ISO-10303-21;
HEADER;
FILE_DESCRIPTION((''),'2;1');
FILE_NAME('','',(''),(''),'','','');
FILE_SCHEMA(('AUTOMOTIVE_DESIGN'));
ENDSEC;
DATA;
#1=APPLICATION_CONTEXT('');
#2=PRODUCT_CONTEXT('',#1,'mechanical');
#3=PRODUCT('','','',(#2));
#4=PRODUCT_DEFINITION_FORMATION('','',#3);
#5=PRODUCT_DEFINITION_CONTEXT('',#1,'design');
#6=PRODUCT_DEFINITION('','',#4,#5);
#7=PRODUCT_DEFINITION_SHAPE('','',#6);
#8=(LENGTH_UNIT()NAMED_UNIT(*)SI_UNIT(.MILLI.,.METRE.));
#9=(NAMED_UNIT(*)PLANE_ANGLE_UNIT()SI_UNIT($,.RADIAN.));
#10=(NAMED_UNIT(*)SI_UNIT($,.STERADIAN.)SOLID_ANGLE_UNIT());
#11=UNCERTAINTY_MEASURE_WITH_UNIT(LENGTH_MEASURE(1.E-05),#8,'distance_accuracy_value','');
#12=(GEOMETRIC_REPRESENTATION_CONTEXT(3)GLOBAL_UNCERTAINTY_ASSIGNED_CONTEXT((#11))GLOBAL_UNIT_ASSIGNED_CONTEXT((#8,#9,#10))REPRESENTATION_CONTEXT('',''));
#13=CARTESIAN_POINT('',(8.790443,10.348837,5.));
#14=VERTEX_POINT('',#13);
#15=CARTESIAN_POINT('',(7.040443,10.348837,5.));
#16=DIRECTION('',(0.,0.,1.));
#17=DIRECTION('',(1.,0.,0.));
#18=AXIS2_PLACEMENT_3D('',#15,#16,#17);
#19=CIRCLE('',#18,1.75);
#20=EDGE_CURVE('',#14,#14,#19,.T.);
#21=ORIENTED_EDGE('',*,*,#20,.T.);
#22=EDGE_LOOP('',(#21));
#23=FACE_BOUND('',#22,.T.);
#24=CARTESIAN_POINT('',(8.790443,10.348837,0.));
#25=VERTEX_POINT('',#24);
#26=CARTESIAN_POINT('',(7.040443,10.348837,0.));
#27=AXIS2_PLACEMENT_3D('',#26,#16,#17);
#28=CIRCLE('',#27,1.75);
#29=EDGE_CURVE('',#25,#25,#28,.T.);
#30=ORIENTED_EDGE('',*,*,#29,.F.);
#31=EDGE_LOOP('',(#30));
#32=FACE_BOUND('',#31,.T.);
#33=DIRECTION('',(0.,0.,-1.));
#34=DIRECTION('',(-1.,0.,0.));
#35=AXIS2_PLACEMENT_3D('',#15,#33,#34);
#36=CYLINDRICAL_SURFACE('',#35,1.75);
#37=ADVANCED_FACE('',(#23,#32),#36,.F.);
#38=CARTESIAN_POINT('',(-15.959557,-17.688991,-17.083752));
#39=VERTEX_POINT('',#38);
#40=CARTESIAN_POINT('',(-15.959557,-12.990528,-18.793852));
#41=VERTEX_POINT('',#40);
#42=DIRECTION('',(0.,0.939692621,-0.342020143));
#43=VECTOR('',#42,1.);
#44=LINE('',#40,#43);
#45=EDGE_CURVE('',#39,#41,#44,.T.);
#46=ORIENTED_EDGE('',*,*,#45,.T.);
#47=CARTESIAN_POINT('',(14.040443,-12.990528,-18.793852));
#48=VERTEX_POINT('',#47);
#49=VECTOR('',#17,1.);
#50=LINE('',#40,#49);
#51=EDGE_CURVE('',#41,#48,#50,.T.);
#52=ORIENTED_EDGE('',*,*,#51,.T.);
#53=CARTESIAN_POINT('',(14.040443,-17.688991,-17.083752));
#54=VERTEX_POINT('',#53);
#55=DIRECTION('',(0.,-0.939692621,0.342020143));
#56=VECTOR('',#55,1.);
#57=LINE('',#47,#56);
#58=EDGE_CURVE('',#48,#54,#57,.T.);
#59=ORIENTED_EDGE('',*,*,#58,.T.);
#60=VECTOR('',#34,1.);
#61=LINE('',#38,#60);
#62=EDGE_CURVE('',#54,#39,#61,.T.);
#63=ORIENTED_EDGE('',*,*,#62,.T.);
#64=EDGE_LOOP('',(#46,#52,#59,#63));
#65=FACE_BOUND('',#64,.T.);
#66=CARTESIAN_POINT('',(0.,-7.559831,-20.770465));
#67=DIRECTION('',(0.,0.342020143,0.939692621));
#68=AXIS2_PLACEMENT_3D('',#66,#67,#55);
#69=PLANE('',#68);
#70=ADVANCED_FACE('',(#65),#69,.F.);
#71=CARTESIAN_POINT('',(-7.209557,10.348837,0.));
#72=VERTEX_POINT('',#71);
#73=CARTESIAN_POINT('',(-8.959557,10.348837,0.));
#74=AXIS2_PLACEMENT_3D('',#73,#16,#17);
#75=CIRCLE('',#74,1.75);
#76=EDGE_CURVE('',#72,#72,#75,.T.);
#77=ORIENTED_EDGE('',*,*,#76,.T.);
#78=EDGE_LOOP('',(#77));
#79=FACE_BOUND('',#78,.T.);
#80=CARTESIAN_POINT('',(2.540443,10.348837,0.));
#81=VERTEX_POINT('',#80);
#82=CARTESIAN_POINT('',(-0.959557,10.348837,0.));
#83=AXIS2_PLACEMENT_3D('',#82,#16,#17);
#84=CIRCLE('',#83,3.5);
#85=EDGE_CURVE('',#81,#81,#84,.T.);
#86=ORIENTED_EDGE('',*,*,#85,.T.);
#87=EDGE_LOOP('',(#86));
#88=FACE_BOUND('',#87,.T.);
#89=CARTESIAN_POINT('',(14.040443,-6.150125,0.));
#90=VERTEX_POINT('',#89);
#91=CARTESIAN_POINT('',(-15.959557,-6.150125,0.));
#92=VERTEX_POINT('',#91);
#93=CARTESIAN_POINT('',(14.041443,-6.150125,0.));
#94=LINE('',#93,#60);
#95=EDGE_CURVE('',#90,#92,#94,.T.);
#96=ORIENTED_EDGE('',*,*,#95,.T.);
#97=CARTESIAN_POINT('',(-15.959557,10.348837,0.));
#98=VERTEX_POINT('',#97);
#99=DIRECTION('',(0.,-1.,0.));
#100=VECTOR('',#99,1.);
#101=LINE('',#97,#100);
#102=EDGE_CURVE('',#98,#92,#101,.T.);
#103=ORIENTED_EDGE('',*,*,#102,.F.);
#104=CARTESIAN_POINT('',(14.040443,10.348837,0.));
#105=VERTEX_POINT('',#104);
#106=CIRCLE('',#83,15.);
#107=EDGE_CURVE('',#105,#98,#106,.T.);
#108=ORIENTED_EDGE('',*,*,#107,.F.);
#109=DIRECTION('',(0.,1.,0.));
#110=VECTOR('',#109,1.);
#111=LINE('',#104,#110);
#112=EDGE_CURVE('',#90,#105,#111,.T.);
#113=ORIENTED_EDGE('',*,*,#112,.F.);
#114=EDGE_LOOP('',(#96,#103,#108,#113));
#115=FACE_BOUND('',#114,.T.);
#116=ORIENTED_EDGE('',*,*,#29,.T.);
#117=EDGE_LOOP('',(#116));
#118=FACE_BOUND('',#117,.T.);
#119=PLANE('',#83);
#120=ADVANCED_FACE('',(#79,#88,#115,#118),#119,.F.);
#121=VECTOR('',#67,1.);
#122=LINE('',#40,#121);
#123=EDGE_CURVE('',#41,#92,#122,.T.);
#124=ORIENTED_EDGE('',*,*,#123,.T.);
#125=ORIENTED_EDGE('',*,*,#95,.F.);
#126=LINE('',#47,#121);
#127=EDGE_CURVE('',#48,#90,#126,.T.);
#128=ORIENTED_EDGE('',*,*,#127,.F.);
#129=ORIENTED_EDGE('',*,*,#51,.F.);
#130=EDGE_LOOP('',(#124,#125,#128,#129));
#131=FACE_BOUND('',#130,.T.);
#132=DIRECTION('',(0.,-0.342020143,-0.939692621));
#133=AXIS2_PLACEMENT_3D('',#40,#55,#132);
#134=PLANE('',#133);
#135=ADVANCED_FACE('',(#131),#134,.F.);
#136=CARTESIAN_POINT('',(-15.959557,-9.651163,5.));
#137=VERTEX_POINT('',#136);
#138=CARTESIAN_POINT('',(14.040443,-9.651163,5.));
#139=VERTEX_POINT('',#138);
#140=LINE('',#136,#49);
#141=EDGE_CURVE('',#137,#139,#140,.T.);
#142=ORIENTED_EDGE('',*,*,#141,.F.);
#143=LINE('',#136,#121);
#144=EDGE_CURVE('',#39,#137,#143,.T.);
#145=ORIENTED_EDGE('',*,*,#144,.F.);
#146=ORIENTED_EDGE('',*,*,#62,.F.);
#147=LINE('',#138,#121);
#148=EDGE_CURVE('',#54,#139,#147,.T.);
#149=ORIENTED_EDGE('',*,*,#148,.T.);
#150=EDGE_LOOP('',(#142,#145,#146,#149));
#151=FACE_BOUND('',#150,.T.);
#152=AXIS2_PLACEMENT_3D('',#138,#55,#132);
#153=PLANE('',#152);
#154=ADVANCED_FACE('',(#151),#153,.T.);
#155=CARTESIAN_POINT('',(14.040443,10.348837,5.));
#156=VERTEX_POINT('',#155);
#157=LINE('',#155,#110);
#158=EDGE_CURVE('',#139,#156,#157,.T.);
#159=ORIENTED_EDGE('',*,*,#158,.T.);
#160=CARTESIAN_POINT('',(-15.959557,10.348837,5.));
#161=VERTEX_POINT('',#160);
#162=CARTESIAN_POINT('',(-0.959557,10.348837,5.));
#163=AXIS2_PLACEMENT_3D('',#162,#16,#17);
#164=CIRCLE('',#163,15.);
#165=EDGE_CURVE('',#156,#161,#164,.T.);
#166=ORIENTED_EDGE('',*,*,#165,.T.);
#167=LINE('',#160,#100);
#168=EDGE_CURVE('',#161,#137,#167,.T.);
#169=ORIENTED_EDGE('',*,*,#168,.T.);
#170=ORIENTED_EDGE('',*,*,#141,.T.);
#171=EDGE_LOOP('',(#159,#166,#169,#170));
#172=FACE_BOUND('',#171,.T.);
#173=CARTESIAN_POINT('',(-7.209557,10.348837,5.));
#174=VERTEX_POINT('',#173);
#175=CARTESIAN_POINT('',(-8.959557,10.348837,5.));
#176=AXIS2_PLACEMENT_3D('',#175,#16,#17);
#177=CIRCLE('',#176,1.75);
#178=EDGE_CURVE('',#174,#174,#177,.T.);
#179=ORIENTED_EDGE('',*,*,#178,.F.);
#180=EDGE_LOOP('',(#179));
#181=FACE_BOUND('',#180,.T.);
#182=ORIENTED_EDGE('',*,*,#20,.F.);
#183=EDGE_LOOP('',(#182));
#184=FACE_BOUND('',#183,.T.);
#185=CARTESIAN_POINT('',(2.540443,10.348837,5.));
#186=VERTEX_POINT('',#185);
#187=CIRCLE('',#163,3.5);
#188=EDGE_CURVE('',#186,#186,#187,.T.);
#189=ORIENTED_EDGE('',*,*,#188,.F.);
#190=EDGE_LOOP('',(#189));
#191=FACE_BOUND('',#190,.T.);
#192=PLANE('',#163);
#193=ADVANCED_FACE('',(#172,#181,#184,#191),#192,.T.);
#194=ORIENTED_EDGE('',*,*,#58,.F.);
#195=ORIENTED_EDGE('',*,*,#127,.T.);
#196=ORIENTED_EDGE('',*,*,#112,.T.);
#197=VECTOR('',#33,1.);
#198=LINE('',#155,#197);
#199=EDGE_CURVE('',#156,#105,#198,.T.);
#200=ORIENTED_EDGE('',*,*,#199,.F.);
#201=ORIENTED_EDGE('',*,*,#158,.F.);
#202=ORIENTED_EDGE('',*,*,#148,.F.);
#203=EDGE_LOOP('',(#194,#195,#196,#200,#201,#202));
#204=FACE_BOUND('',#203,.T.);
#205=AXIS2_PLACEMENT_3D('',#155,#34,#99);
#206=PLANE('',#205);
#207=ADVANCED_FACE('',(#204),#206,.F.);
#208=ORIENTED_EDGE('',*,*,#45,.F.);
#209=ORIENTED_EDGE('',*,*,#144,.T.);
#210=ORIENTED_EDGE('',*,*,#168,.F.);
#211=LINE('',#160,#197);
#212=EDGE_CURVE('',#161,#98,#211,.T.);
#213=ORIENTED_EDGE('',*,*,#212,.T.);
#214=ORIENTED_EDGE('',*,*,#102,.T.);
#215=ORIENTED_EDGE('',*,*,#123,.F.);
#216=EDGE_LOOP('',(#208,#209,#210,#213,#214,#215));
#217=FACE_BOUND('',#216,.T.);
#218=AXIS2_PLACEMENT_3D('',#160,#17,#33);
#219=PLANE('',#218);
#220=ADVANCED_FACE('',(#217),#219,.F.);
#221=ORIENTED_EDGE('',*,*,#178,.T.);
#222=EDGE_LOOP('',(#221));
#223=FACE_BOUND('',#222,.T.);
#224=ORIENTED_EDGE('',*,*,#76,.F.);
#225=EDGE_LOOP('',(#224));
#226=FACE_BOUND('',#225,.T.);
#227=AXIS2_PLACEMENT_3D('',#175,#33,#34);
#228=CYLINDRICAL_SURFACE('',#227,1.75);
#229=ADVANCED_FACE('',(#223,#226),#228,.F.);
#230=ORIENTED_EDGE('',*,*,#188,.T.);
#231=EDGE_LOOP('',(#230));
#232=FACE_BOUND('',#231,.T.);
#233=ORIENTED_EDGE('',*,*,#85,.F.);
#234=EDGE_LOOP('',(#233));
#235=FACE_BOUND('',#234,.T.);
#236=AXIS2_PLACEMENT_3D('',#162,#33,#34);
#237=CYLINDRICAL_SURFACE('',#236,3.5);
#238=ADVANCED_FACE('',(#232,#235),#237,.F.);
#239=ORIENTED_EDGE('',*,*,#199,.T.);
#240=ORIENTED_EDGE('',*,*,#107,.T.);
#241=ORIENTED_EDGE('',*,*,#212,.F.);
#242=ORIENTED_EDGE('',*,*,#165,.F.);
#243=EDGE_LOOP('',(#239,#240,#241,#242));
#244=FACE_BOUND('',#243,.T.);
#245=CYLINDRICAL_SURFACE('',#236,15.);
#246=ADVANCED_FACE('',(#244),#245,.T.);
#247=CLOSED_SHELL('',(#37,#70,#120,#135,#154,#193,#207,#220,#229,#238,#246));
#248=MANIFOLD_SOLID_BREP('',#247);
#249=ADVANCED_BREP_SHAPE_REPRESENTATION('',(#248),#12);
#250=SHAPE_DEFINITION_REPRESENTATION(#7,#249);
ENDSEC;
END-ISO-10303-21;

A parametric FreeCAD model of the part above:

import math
import FreeCAD as App
import Part
import Sketcher

V = App.Vector
Q = App.Units.Quantity

doc = App.newDocument("Part")
body = doc.addObject("PartDesign::Body", "Body")

# Sketch on XY plane
sketch1 = body.newObject("Sketcher::SketchObject", "Sketch")
sketch1.AttachmentSupport = (doc.getObject("XY_Plane"), [""])
sketch1.MapMode = "FlatFace"
sketch1.addGeometry(Part.LineSegment(V(-16, 10.3, 0), V(-16, -9.7, 0)), False)
sketch1.addGeometry(Part.LineSegment(V(-16, -9.7, 0), V(14, -9.7, 0)), False)
sketch1.addGeometry(Part.LineSegment(V(14, -9.7, 0), V(14, 10.3, 0)), False)
sketch1.addGeometry(Part.ArcOfCircle(Part.Circle(V(-1, 10.3, 0), V(0, 0, 1), 15), math.radians(0), math.radians(180)), False)
sketch1.addGeometry(Part.Circle(V(-9, 10.3, 0), V(0, 0, 1), 1.8), False)
sketch1.addGeometry(Part.Circle(V(-1, 10.3, 0), V(0, 0, 1), 3.5), False)
sketch1.addGeometry(Part.Circle(V(7, 10.3, 0), V(0, 0, 1), 1.8), False)
sketch1.addConstraint(Sketcher.Constraint("Coincident", 0, 2, 1, 1))
sketch1.addConstraint(Sketcher.Constraint("Coincident", 1, 2, 2, 1))
sketch1.addConstraint(Sketcher.Constraint("Tangent", 2, 2, 3, 1))
sketch1.addConstraint(Sketcher.Constraint("Tangent", 3, 2, 0, 1))
sketch1.addConstraint(Sketcher.Constraint("Vertical", 0))
sketch1.addConstraint(Sketcher.Constraint("Horizontal", 1))
sketch1.addConstraint(Sketcher.Constraint("Vertical", 2))
sketch1.addConstraint(Sketcher.Constraint("Coincident", 5, 3, 3, 3))
sketch1.addConstraint(Sketcher.Constraint("Equal", 4, 6))
sketch1.addConstraint(Sketcher.Constraint("Horizontal", 3, 3, 4, 3))
sketch1.addConstraint(Sketcher.Constraint("Horizontal", 5, 3, 6, 3))
sketch1.addConstraint(Sketcher.Constraint("Diameter", 5, Q("7 mm")))
sketch1.addConstraint(Sketcher.Constraint("Radius", 3, Q("15 mm")))
sketch1.addConstraint(Sketcher.Constraint("Diameter", 4, Q("3.5 mm")))
sketch1.addConstraint(Sketcher.Constraint("DistanceY", 0, 2, 0, 1, Q("20 mm")))
sketch1.addConstraint(Sketcher.Constraint("DistanceX", 4, 3, 3, 3, Q("8 mm")))
sketch1.addConstraint(Sketcher.Constraint("DistanceX", 3, 3, 6, 3, Q("8 mm")))
sketch1.addConstraint(Sketcher.Constraint("DistanceX", 3, 3, -1, 1, Q("0.959557 mm")))
sketch1.addConstraint(Sketcher.Constraint("DistanceY", -1, 1, 3, 3, Q("10.348837 mm")))
pad1 = body.newObject("PartDesign::Pad", "Pad")
pad1.Profile = sketch1
pad1.Length = 5

# Sketch on YZ plane
sketch2 = body.newObject("Sketcher::SketchObject", "Sketch001")
sketch2.AttachmentSupport = (doc.getObject("YZ_Plane"), [""])
sketch2.MapMode = "FlatFace"
sketch2.AttachmentOffset = App.Placement(V(0, 0, -15.959557), App.Rotation())
sketch2.addGeometry(Part.LineSegment(V(-6.2, 0, 0), V(-9.7, 0, 0)), False)
sketch2.addGeometry(Part.LineSegment(V(-9.7, 0, 0), V(-9.7, 1.3, 0)), False)
sketch2.addGeometry(Part.LineSegment(V(-9.7, 1.3, 0), V(-6.2, 0, 0)), False)
sketch2.addConstraint(Sketcher.Constraint("Coincident", 0, 2, 1, 1))
sketch2.addConstraint(Sketcher.Constraint("Coincident", 1, 2, 2, 1))
sketch2.addConstraint(Sketcher.Constraint("Coincident", 2, 2, 0, 1))
sketch2.addConstraint(Sketcher.Constraint("Horizontal", 0))
sketch2.addConstraint(Sketcher.Constraint("Vertical", 1))
sketch2.addConstraint(Sketcher.Constraint("PointOnObject", 0, 2, -1))
sketch2.addConstraint(Sketcher.Constraint("Angle", 2, Q("-20 deg")))
sketch2.addConstraint(Sketcher.Constraint("DistanceX", 0, 2, 0, 1, Q("3.501038 mm")))
sketch2.addConstraint(Sketcher.Constraint("DistanceX", 0, 2, -1, 1, Q("9.651163 mm")))
pocket1 = body.newObject("PartDesign::Pocket", "Pocket")
pocket1.Profile = sketch2
pocket1.Type = "UpToFirst"
pocket1.Reversed = True

# Sketch on YZ plane
sketch3 = body.newObject("Sketcher::SketchObject", "Sketch002")
sketch3.AttachmentSupport = (doc.getObject("YZ_Plane"), [""])
sketch3.MapMode = "FlatFace"
sketch3.AttachmentOffset = App.Placement(V(0, 0, -15.959557), App.Rotation())
sketch3.addGeometry(Part.LineSegment(V(-10.8, 1.7, 0), V(-9.7, 5, 0)), False)
sketch3.addGeometry(Part.LineSegment(V(-9.7, 5, 0), V(-9.7, 1.3, 0)), False)
sketch3.addGeometry(Part.LineSegment(V(-9.7, 1.3, 0), V(-10.8, 1.7, 0)), False)
sketch3.addConstraint(Sketcher.Constraint("Coincident", 0, 2, 1, 1))
sketch3.addConstraint(Sketcher.Constraint("Coincident", 1, 2, 2, 1))
sketch3.addConstraint(Sketcher.Constraint("Coincident", 2, 2, 0, 1))
sketch3.addConstraint(Sketcher.Constraint("Vertical", 1))
sketch3.addConstraint(Sketcher.Constraint("Perpendicular", 0, 2))
sketch3.addConstraint(Sketcher.Constraint("Angle", 0, Q("70 deg")))
sketch3.addConstraint(Sketcher.Constraint("DistanceY", -1, 1, 0, 2, Q("5 mm")))
sketch3.addConstraint(Sketcher.Constraint("DistanceY", -1, 1, 2, 2, Q("1.710101 mm")))
sketch3.addConstraint(Sketcher.Constraint("DistanceX", 2, 2, -1, 1, Q("10.848588 mm")))
pad2 = body.newObject("PartDesign::Pad", "Pad001")
pad2.Profile = sketch3
pad2.Length = 30

# Sketch on an angled plane
sketch4 = body.newObject("Sketcher::SketchObject", "Sketch003")
sketch4.Placement = App.Placement(V(0, -0.719428, -1.976612), App.Rotation(V(-1, 0, 0), V(0, 0.939692621, -0.342020143), V(0, -0.342020143, -0.939692621), "ZXY"))
sketch4.addGeometry(Part.LineSegment(V(-14, -6, 0), V(-14, -11, 0)), False)
sketch4.addGeometry(Part.LineSegment(V(-14, -11, 0), V(16, -11, 0)), False)
sketch4.addGeometry(Part.LineSegment(V(16, -11, 0), V(16, -6, 0)), False)
sketch4.addGeometry(Part.LineSegment(V(16, -6, 0), V(-14, -6, 0)), False)
sketch4.addConstraint(Sketcher.Constraint("Coincident", 0, 2, 1, 1))
sketch4.addConstraint(Sketcher.Constraint("Coincident", 1, 2, 2, 1))
sketch4.addConstraint(Sketcher.Constraint("Coincident", 2, 2, 3, 1))
sketch4.addConstraint(Sketcher.Constraint("Coincident", 3, 2, 0, 1))
sketch4.addConstraint(Sketcher.Constraint("Vertical", 0))
sketch4.addConstraint(Sketcher.Constraint("Horizontal", 1))
sketch4.addConstraint(Sketcher.Constraint("Vertical", 2))
sketch4.addConstraint(Sketcher.Constraint("Horizontal", 3))
sketch4.addConstraint(Sketcher.Constraint("DistanceX", 1, 1, 1, 2, Q("30 mm")))
sketch4.addConstraint(Sketcher.Constraint("DistanceY", 0, 2, 0, 1, Q("5 mm")))
sketch4.addConstraint(Sketcher.Constraint("DistanceX", 0, 2, -1, 1, Q("14.040443 mm")))
sketch4.addConstraint(Sketcher.Constraint("DistanceY", 0, 2, -1, 1, Q("10.779227 mm")))
pad3 = body.newObject("PartDesign::Pad", "Pad002")
pad3.Profile = sketch4
pad3.Length = 20

doc.recompute()
